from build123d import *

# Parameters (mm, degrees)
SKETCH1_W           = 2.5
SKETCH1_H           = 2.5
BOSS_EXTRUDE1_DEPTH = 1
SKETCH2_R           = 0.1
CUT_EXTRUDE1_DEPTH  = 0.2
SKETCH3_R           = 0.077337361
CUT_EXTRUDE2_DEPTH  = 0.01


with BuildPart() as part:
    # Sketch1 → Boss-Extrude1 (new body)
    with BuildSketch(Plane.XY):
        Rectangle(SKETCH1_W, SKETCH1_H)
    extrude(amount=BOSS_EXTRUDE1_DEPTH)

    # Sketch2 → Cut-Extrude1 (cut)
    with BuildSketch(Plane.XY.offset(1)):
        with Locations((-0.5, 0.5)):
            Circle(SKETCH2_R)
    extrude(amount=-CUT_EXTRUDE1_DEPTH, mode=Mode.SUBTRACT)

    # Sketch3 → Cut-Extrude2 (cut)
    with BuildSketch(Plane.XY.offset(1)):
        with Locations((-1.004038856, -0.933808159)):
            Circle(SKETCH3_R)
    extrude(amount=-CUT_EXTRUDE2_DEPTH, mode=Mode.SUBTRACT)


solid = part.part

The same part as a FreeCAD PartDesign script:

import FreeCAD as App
import Part
import Sketcher
from FreeCAD import Vector

doc = App.newDocument("Part")
body = doc.addObject("PartDesign::Body", "Body")

sketch1 = body.newObject("Sketcher::SketchObject", "Sketch")
sketch1.AttachmentSupport = (doc.getObject("XY_Plane"), [""])
sketch1.MapMode = "FlatFace"
sketch1.addGeometry(Part.LineSegment(Vector(-1.2, 1.2, 0), Vector(-1.2, -1.2, 0)), False)
sketch1.addGeometry(Part.LineSegment(Vector(-1.2, -1.2, 0), Vector(1.2, -1.2, 0)), False)
sketch1.addGeometry(Part.LineSegment(Vector(1.2, -1.2, 0), Vector(1.2, 1.2, 0)), False)
sketch1.addGeometry(Part.LineSegment(Vector(1.2, 1.2, 0), Vector(-1.2, 1.2, 0)), False)
sketch1.addConstraint(Sketcher.Constraint("Coincident", 0, 2, 1, 1))
sketch1.addConstraint(Sketcher.Constraint("Coincident", 1, 2, 2, 1))
sketch1.addConstraint(Sketcher.Constraint("Coincident", 2, 2, 3, 1))
sketch1.addConstraint(Sketcher.Constraint("Coincident", 3, 2, 0, 1))
sketch1.addConstraint(Sketcher.Constraint("Vertical", 0))
sketch1.addConstraint(Sketcher.Constraint("Horizontal", 1))
sketch1.addConstraint(Sketcher.Constraint("Vertical", 2))
sketch1.addConstraint(Sketcher.Constraint("Horizontal", 3))
sketch1.addConstraint(Sketcher.Constraint("Symmetric", 0, 2, 2, 2, -1, 1))
sketch1.addConstraint(Sketcher.Constraint("Equal", 3, 0))
sketch1.addConstraint(Sketcher.Constraint("DistanceX", 1, 1, 1, 2, 2.5))
pad1 = body.newObject("PartDesign::Pad", "Pad")
pad1.Profile = sketch1
pad1.Length = 1

sketch2 = body.newObject("Sketcher::SketchObject", "Sketch001")
sketch2.AttachmentSupport = (doc.getObject("XY_Plane"), [""])
sketch2.MapMode = "FlatFace"
sketch2.AttachmentOffset = App.Placement(Vector(0, 0, 1), App.Rotation())
sketch2.addGeometry(Part.Circle(Vector(-0.5, 0.5, 0), Vector(0, 0, 1), 0.1), False)
sketch2.addConstraint(Sketcher.Constraint("Diameter", 0, 0.2))
sketch2.addConstraint(Sketcher.Constraint("DistanceX", 0, 3, -1, 1, 0.5))
sketch2.addConstraint(Sketcher.Constraint("DistanceY", -1, 1, 0, 3, 0.5))
pocket1 = body.newObject("PartDesign::Pocket", "Pocket")
pocket1.Profile = sketch2
pocket1.Length = 0.2

sketch3 = body.newObject("Sketcher::SketchObject", "Sketch002")
sketch3.AttachmentSupport = (doc.getObject("XY_Plane"), [""])
sketch3.MapMode = "FlatFace"
sketch3.AttachmentOffset = App.Placement(Vector(0, 0, 1), App.Rotation())
sketch3.addGeometry(Part.Circle(Vector(-1, -0.93, 0), Vector(0, 0, 1), 0.08), False)
sketch3.addConstraint(Sketcher.Constraint("Diameter", 0, 0.154675))
sketch3.addConstraint(Sketcher.Constraint("DistanceX", 0, 3, -1, 1, 1.004039))
sketch3.addConstraint(Sketcher.Constraint("DistanceY", 0, 3, -1, 1, 0.933808))
pocket2 = body.newObject("PartDesign::Pocket", "Pocket001")
pocket2.Profile = sketch3
pocket2.Length = 0.01

doc.recompute()
